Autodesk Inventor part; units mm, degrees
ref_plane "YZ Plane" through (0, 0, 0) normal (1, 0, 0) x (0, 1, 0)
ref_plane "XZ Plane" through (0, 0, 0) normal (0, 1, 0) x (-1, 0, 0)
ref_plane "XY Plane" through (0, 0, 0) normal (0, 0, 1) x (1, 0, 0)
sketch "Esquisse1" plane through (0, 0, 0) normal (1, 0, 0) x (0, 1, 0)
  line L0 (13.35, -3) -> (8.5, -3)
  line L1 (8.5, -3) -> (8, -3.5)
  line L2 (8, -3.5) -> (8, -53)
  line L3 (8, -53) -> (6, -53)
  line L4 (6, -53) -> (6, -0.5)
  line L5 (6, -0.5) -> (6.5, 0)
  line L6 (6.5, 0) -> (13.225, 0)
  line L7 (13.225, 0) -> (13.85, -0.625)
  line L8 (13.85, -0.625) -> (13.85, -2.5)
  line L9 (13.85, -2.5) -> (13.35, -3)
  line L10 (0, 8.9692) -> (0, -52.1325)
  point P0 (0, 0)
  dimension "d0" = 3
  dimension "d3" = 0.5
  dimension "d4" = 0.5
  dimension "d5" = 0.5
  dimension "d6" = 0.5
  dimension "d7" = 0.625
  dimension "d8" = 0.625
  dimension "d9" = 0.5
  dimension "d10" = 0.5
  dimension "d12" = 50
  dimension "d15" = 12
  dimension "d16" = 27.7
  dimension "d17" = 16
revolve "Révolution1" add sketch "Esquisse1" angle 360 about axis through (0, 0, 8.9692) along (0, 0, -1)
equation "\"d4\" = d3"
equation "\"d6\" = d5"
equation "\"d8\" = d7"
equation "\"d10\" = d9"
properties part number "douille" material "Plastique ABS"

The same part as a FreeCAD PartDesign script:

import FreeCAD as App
import Part
import Sketcher

V = App.Vector
Q = App.Units.Quantity

doc = App.newDocument("Part")
body = doc.addObject("PartDesign::Body", "Body")

# Sketch on YZ plane
sketch1 = body.newObject("Sketcher::SketchObject", "Sketch")
sketch1.AttachmentSupport = (doc.getObject("YZ_Plane"), [""])
sketch1.MapMode = "FlatFace"
sketch1.addGeometry([
    Part.LineSegment(V(8.5, -3, 0), V(13.3, -3, 0)),  # 0
    Part.LineSegment(V(13.3, -3, 0), V(13.8, -2.5, 0)),  # 1
    Part.LineSegment(V(13.8, -2.5, 0), V(13.8, -0.6, 0)),  # 2
    Part.LineSegment(V(13.8, -0.6, 0), V(13.2, 0, 0)),  # 3
    Part.LineSegment(V(13.2, 0, 0), V(6.5, 0, 0)),  # 4
    Part.LineSegment(V(6.5, 0, 0), V(6, -0.5, 0)),  # 5
    Part.LineSegment(V(6, -0.5, 0), V(6, -53, 0)),  # 6
    Part.LineSegment(V(6, -53, 0), V(8, -53, 0)),  # 7
    Part.LineSegment(V(8, -53, 0), V(8, -3.5, 0)),  # 8
    Part.LineSegment(V(8, -3.5, 0), V(8.5, -3, 0)),  # 9
], False)
sketch1.addConstraint([
    Sketcher.Constraint("Coincident", 0, 2, 1, 1),
    Sketcher.Constraint("Coincident", 1, 2, 2, 1),
    Sketcher.Constraint("Coincident", 2, 2, 3, 1),
    Sketcher.Constraint("Coincident", 3, 2, 4, 1),
    Sketcher.Constraint("Coincident", 4, 2, 5, 1),
    Sketcher.Constraint("Coincident", 5, 2, 6, 1),
    Sketcher.Constraint("Coincident", 6, 2, 7, 1),
    Sketcher.Constraint("Coincident", 7, 2, 8, 1),
    Sketcher.Constraint("Coincident", 8, 2, 9, 1),
    Sketcher.Constraint("Coincident", 9, 2, 0, 1),
    Sketcher.Constraint("Horizontal", 0),
    Sketcher.Constraint("Vertical", 2),
    Sketcher.Constraint("Horizontal", 4),
    Sketcher.Constraint("Vertical", 6),
    Sketcher.Constraint("Horizontal", 7),
    Sketcher.Constraint("Vertical", 8),
    Sketcher.Constraint("PointOnObject", 3, 2, -1),
    Sketcher.Constraint("Perpendicular", 1, 3),
    Sketcher.Constraint("Perpendicular", 3, 5),
    Sketcher.Constraint("Parallel", 5, 9),
    Sketcher.Constraint("Equal", 1, 5),
    Sketcher.Constraint("Equal", 5, 9),
    Sketcher.Constraint("DistanceY", 0, 2, -1, 1, Q("3 mm")),
    Sketcher.Constraint("DistanceY", 6, 2, 0, 2, Q("50 mm")),
    Sketcher.Constraint("DistanceY", 5, 2, -1, 1, Q("0.5 mm")),
    Sketcher.Constraint("DistanceX", 0, 2, 1, 2, Q("0.5 mm")),
    Sketcher.Constraint("DistanceX", 7, 1, 7, 2, Q("2 mm")),
    Sketcher.Constraint("DistanceY", 2, 2, -1, 1, Q("0.625 mm")),
    Sketcher.Constraint("DistanceX", -1, 1, 5, 2, Q("6 mm")),
    Sketcher.Constraint("DistanceX", 0, 1, 0, 2, Q("4.85 mm")),
])
revolution = body.newObject("PartDesign::Revolution", "Revolution")
revolution.Profile = sketch1
revolution.ReferenceAxis = (sketch1, ["V_Axis"])
revolution.Angle = 360

doc.recompute()
